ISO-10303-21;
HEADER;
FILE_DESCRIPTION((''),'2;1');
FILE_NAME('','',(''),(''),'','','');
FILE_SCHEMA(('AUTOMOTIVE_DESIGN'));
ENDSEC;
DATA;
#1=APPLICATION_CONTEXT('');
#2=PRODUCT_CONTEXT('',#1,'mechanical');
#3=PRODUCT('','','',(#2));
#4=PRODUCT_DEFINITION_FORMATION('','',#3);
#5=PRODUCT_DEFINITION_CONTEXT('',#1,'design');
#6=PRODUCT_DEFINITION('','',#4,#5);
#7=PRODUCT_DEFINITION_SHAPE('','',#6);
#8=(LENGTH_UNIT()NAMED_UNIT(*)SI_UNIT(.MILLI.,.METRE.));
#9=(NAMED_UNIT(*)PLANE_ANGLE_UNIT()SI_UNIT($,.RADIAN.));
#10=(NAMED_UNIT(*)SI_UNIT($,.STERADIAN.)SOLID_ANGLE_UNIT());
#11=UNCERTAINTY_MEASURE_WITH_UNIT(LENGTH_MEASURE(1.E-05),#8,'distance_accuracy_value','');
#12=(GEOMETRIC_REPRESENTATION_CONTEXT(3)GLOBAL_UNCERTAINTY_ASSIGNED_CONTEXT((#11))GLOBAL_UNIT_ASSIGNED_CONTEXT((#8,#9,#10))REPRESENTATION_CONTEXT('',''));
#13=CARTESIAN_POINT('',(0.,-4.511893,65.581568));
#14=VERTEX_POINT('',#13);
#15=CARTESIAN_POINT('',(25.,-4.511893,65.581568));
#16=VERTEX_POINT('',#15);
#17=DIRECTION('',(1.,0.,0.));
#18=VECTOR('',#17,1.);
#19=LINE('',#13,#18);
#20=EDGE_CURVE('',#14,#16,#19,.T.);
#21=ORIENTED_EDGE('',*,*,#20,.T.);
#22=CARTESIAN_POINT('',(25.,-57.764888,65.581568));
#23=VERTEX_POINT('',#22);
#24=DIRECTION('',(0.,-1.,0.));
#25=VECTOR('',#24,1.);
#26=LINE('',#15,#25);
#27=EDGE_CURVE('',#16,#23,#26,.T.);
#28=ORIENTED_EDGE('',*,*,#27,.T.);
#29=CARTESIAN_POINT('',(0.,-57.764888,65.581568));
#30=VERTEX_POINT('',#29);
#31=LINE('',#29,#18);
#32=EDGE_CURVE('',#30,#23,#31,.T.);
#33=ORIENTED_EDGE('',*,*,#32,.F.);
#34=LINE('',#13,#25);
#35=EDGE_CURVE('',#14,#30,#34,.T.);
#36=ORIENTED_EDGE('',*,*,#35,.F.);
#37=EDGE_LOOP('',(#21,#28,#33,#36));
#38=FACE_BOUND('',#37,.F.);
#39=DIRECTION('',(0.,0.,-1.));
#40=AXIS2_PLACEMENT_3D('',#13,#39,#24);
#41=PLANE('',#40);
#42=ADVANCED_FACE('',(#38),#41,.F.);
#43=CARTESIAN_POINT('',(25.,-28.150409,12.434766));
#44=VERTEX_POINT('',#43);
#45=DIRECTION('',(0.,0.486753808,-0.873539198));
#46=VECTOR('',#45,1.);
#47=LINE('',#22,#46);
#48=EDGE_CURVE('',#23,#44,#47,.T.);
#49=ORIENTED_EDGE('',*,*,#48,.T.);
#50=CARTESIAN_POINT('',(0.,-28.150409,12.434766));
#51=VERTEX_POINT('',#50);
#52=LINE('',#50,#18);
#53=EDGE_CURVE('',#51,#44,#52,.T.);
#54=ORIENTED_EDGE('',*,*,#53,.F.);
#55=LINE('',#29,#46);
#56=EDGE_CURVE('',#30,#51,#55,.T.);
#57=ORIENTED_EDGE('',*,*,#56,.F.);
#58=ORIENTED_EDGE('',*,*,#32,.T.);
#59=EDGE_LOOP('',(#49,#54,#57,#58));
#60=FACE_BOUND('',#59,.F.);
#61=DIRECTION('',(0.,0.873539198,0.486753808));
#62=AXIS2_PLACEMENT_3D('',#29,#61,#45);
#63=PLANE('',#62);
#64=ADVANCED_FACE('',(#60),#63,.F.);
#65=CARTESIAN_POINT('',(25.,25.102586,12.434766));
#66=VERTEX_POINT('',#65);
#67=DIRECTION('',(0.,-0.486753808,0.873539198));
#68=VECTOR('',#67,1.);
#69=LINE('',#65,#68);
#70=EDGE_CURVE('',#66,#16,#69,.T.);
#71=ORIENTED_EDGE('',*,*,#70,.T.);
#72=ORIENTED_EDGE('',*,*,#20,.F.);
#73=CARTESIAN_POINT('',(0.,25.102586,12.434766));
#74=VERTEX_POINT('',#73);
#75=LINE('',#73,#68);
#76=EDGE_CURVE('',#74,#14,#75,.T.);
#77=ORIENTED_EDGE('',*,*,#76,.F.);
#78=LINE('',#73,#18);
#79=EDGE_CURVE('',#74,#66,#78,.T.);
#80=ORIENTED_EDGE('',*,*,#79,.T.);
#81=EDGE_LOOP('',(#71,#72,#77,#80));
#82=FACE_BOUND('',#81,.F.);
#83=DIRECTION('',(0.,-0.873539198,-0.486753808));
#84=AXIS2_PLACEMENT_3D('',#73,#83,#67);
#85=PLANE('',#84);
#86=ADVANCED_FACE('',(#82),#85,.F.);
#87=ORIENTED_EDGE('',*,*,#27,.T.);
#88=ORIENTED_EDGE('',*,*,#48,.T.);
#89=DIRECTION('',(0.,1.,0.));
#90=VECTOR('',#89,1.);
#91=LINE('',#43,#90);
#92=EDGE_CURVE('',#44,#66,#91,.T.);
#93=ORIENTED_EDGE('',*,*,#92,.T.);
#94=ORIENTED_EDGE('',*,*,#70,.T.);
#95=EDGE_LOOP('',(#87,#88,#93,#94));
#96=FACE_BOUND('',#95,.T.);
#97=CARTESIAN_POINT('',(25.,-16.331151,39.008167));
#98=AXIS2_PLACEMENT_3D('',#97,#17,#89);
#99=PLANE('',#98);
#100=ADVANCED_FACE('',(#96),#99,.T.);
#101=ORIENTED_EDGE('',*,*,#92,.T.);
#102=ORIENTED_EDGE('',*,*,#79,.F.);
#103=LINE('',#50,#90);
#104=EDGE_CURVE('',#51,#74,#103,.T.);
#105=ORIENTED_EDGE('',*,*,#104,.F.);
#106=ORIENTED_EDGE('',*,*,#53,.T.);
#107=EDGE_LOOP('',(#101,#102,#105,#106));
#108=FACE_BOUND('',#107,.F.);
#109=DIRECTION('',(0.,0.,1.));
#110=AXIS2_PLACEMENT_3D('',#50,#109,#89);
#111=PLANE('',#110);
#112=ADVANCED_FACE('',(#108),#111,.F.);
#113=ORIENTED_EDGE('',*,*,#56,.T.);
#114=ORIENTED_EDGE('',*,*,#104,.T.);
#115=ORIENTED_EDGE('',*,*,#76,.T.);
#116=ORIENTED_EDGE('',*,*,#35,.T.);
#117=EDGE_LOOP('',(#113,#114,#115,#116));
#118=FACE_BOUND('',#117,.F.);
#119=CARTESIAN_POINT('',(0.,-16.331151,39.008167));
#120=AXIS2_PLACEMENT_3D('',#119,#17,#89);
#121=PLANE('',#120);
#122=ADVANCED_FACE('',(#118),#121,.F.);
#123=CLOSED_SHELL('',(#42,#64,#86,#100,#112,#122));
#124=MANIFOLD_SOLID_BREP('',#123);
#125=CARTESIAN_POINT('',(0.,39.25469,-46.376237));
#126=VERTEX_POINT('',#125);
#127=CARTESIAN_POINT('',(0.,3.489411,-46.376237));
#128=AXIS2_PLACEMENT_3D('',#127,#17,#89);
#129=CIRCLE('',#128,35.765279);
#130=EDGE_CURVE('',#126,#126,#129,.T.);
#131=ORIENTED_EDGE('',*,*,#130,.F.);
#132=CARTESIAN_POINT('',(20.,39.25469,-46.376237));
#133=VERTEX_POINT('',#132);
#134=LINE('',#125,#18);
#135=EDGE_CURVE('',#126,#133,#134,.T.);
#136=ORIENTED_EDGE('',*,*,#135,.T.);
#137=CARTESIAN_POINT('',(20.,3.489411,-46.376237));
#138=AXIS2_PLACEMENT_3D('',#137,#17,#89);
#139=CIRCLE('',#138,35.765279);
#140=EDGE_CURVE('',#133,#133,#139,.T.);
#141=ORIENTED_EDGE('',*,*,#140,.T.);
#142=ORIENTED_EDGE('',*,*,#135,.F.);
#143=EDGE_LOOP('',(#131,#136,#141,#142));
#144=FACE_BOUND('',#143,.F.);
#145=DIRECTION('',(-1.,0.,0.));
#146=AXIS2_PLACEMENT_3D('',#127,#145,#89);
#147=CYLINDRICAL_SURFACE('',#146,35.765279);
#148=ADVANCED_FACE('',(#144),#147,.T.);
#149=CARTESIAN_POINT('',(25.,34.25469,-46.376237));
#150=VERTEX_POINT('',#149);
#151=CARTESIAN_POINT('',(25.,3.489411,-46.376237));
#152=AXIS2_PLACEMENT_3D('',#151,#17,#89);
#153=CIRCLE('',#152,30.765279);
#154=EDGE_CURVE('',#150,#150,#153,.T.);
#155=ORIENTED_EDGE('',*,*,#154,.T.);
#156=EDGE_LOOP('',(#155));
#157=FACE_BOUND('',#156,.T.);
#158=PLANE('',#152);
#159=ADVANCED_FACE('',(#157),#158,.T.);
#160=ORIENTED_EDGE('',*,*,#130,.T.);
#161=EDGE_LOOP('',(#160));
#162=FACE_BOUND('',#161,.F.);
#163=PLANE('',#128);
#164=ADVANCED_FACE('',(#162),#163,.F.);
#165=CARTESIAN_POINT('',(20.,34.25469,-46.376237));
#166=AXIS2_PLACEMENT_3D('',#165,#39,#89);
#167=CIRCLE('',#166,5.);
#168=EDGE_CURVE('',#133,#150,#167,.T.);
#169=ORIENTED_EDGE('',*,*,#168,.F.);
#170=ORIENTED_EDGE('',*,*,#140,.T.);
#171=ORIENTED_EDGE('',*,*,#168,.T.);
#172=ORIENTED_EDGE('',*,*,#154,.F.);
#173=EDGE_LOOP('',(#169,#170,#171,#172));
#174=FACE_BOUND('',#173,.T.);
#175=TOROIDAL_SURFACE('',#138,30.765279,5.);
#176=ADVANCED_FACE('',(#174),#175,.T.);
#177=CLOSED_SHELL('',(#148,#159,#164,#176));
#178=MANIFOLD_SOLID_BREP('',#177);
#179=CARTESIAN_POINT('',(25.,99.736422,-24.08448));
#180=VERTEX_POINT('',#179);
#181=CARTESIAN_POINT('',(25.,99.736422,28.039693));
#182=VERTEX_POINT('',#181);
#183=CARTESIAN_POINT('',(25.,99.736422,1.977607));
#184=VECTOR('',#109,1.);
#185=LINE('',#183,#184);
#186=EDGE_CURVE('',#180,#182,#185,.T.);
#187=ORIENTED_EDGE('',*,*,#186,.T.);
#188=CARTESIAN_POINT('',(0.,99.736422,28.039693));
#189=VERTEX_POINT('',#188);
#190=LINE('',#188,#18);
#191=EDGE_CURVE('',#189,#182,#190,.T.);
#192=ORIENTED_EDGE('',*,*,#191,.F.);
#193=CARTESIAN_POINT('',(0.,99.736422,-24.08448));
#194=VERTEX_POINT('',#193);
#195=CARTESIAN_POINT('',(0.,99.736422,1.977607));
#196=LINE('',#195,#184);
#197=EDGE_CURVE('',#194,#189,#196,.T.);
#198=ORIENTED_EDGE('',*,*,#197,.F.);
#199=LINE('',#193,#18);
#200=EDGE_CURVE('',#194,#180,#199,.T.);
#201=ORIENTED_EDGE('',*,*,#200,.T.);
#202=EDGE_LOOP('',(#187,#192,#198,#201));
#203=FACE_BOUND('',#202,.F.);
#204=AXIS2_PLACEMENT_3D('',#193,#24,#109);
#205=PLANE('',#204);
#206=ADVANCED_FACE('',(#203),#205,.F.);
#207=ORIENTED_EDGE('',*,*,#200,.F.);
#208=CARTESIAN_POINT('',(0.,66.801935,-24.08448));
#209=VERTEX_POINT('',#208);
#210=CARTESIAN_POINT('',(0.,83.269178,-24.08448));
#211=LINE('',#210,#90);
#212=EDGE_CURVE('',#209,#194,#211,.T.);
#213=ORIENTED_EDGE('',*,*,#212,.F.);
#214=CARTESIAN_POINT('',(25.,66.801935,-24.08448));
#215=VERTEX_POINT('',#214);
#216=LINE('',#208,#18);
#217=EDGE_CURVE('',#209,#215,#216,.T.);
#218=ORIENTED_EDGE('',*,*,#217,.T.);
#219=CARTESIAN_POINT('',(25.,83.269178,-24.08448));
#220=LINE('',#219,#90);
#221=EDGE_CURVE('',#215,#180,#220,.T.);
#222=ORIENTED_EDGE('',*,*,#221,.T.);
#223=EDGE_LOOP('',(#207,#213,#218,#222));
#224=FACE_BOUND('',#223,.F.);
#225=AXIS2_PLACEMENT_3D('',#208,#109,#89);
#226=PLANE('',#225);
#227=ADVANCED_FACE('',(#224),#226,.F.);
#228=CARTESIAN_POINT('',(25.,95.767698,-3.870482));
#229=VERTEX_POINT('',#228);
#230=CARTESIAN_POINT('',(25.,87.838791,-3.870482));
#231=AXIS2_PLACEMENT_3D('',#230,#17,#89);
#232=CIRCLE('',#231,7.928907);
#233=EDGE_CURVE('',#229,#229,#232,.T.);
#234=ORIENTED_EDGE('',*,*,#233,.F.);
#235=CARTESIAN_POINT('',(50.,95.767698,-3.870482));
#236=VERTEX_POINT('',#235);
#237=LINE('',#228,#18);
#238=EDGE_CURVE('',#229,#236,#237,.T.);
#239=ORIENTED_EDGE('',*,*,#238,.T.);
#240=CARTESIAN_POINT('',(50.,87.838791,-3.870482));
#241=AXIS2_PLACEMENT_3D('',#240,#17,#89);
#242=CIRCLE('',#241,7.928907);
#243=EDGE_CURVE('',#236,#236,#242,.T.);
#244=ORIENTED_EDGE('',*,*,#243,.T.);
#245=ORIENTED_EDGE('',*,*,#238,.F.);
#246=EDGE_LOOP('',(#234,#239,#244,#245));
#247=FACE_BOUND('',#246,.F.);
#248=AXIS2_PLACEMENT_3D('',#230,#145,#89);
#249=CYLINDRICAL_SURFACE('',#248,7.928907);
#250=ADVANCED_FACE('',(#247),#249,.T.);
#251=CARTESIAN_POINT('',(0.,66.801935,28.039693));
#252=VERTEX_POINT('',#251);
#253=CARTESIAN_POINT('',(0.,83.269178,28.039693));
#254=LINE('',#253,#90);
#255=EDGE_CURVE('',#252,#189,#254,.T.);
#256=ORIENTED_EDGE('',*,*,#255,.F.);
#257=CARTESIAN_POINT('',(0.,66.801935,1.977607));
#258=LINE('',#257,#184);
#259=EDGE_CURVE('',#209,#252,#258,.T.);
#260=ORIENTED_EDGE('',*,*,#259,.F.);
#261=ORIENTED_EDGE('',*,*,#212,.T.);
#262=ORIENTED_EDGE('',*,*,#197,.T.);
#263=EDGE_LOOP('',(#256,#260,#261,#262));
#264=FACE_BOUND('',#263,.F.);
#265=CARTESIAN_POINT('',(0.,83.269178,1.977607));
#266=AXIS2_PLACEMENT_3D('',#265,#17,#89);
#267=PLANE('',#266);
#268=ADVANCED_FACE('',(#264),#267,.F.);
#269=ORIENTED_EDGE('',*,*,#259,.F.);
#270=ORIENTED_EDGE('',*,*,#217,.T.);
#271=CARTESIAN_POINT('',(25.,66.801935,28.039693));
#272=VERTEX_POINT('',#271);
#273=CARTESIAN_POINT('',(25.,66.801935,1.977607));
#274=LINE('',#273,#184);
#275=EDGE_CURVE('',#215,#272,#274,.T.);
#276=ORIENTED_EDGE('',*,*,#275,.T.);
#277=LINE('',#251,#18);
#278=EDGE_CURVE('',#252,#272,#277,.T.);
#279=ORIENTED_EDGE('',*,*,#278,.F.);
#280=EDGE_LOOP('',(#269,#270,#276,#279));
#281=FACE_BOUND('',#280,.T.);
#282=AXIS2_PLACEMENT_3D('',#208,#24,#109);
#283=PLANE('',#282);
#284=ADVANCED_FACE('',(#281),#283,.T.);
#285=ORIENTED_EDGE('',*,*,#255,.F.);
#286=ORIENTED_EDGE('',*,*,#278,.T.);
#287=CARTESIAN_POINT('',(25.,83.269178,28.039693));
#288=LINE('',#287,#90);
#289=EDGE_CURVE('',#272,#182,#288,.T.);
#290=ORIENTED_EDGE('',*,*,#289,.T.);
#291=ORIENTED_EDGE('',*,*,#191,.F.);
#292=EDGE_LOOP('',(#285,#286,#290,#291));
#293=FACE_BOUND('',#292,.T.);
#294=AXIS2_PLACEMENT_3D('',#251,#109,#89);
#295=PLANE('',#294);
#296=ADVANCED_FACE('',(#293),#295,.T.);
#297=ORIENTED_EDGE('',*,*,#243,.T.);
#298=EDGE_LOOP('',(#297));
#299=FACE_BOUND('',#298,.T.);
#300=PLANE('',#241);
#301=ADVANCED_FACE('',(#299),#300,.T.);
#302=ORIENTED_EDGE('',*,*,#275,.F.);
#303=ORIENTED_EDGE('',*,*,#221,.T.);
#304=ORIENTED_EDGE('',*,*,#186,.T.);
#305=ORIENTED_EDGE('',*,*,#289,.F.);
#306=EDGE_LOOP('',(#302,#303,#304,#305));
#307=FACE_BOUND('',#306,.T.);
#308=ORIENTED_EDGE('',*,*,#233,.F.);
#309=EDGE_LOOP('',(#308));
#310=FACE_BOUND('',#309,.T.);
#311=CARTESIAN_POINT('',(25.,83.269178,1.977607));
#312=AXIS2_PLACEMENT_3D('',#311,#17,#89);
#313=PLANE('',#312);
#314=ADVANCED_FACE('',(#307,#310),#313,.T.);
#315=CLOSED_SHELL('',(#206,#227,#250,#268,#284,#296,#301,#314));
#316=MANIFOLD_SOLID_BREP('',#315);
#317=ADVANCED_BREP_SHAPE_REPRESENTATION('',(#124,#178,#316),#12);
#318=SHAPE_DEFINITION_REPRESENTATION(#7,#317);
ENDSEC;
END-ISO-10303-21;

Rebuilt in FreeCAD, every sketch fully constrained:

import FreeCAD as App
import Part
import Sketcher
from FreeCAD import Vector


def edges_at(feature, points):
    """Names of the edges that pass closest to the given points."""
    edges = feature.Shape.Edges
    near = lambda p: min(range(len(edges)), key=lambda i: edges[i].distToShape(Part.Vertex(*p))[0])
    return sorted({f"Edge{near(p) + 1}" for p in points})


def add_polygon(sketch, points):
    """Adds a closed chain of lines whose ends are joined by coincident constraints."""
    first, n = sketch.GeometryCount, len(points)
    for a, b in zip(points, points[1:] + points[:1]):
        sketch.addGeometry(Part.LineSegment(App.Vector(*a, 0), App.Vector(*b, 0)), False)
    for i in range(n):
        sketch.addConstraint(Sketcher.Constraint("Coincident", first + i, 2, first + (i + 1) % n, 1))

doc = App.newDocument("Part")
body = doc.addObject("PartDesign::Body", "Body")
body.AllowCompound = True

# Sketch on YZ plane
sketch1 = body.newObject("Sketcher::SketchObject", "Sketch")
sketch1.AttachmentSupport = (doc.getObject("YZ_Plane"), [""])
sketch1.MapMode = "FlatFace"
add_polygon(sketch1, [(-4.511893, 65.581568), (-57.764888, 65.581568), (-28.150409, 12.434766), (25.102586, 12.434766)])  # lines 0-3
sketch1.addGeometry(Part.Circle(Vector(3.489411, -46.376237, 0), Vector(0, 0, 1), 35.765279), False)  # 4
add_polygon(sketch1, [(66.801935, 28.039693), (66.801935, -24.08448), (99.736422, -24.08448), (99.736422, 28.039693)])  # lines 5-8
sketch1.addConstraint([
    Sketcher.Constraint("Horizontal", 0),
    Sketcher.Constraint("Horizontal", 2),
    Sketcher.Constraint("Vertical", 5),
    Sketcher.Constraint("Horizontal", 6),
    Sketcher.Constraint("Vertical", 7),
    Sketcher.Constraint("Horizontal", 8),
    Sketcher.Constraint("Parallel", 1, 3),
    Sketcher.Constraint("Diameter", 4, 71.530558),
    Sketcher.Constraint("DistanceX", 0, 2, 4, 3, 61.254299),
    Sketcher.Constraint("DistanceX", 0, 2, 0, 1, 53.252995),
    Sketcher.Constraint("DistanceX", 6, 1, 6, 2, 32.934487),
    Sketcher.Constraint("DistanceY", 5, 2, 5, 1, 52.124173),
    Sketcher.Constraint("DistanceX", -1, 1, 4, 3, 3.489411),
    Sketcher.Constraint("DistanceY", -1, 1, 0, 2, 65.581568),
    Sketcher.Constraint("DistanceX", 1, 2, -1, 1, 28.150409),
    Sketcher.Constraint("DistanceY", 5, 2, -1, 1, 24.08448),
    Sketcher.Constraint("DistanceX", -1, 1, 6, 2, 99.736422),
    Sketcher.Constraint("DistanceY", 4, 3, 7, 2, 74.415931),
    Sketcher.Constraint("Distance", 1, 60.840775),
])
pad1 = body.newObject("PartDesign::Pad", "Pad")
pad1.Profile = sketch1
pad1.Length = 25
doc.recompute()

fillet = body.newObject("PartDesign::Fillet", "Fillet")
fillet.Base = (pad1, edges_at(pad1, [(25, -32.276, -46.376)]))
fillet.Radius = 5

# Sketch on YZ plane
sketch2 = body.newObject("Sketcher::SketchObject", "Sketch001")
sketch2.AttachmentSupport = (doc.getObject("YZ_Plane"), [""])
sketch2.MapMode = "FlatFace"
sketch2.AttachmentOffset = App.Placement(Vector(0, 0, 25), App.Rotation())
sketch2.addGeometry(Part.Circle(Vector(87.838791, -3.870482, 0), Vector(0, 0, 1), 7.928907), False)
sketch2.addConstraint([
    Sketcher.Constraint("Diameter", 0, 15.857814),
    Sketcher.Constraint("DistanceX", -1, 1, 0, 3, 87.838791),
    Sketcher.Constraint("DistanceY", 0, 3, -1, 1, 3.870482),
])
pad2 = body.newObject("PartDesign::Pad", "Pad001")
pad2.Profile = sketch2
pad2.Length = 25

doc.recompute()
